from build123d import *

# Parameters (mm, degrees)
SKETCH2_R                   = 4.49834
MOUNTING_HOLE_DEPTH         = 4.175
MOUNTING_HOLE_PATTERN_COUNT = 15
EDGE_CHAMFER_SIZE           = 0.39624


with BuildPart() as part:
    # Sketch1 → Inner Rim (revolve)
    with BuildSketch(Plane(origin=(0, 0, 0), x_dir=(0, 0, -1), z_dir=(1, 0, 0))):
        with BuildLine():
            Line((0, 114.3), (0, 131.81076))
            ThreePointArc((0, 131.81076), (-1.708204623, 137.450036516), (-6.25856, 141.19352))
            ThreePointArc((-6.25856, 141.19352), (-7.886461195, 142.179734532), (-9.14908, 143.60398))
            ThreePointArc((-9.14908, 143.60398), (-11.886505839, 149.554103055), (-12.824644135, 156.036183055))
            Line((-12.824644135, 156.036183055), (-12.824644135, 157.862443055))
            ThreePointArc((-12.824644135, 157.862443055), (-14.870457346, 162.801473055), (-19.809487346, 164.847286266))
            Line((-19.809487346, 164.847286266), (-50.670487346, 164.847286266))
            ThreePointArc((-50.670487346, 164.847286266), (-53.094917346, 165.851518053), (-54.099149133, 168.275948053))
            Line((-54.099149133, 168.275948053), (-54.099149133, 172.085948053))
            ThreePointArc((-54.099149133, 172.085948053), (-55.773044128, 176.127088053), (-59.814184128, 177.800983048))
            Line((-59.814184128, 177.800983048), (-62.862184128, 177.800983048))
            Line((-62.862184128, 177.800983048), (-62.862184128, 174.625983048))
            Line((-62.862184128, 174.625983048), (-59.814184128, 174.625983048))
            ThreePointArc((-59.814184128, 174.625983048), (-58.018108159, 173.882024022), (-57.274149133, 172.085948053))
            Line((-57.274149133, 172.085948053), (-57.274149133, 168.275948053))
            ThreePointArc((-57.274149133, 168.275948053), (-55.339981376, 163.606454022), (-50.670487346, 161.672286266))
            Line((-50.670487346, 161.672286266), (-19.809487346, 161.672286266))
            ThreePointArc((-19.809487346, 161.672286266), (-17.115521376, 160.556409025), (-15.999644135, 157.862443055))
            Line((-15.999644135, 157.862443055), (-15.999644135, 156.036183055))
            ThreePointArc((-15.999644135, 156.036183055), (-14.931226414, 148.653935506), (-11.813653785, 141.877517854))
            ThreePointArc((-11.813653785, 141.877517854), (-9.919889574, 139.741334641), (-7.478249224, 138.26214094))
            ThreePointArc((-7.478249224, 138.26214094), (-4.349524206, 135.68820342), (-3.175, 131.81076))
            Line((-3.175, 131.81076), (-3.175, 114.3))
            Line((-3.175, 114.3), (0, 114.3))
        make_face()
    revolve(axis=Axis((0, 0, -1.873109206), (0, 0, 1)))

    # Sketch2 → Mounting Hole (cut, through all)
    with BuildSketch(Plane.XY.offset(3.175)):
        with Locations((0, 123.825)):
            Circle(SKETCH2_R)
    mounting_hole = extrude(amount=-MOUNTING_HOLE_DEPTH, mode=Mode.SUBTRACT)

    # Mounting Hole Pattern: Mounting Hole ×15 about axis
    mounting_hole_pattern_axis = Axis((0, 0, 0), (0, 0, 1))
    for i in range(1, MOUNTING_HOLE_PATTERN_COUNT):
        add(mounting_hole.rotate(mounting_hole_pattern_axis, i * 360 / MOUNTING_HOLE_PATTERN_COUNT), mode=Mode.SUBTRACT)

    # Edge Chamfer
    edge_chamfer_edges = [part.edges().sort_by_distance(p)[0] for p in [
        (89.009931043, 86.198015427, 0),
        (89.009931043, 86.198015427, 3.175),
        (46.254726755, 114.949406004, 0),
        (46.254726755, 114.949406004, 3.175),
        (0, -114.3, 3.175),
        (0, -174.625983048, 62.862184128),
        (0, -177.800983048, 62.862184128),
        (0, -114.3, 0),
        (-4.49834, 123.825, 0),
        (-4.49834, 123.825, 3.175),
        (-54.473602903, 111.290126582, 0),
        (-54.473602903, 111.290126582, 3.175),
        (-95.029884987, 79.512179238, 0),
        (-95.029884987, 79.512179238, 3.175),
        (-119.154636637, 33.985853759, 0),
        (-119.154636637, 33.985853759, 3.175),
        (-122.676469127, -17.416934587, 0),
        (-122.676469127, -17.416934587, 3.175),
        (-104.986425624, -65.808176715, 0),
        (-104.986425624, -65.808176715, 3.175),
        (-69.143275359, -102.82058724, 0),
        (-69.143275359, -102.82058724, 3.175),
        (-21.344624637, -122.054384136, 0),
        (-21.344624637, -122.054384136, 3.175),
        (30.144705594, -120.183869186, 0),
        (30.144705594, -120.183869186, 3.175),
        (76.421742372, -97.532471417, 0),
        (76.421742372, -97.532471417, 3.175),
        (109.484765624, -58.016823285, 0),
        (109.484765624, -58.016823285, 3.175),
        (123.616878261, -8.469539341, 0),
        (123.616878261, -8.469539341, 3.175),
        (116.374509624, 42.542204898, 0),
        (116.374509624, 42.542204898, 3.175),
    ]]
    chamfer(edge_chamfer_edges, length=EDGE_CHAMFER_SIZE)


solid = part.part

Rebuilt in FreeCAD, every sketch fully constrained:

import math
import FreeCAD as App
import Part
import Sketcher
from FreeCAD import Vector
Q = App.Units.Quantity


def edges_at(feature, points):
    """Names of the edges that pass closest to the given points."""
    edges = feature.Shape.Edges
    near = lambda p: min(range(len(edges)), key=lambda i: edges[i].distToShape(Part.Vertex(*p))[0])
    return sorted({f"Edge{near(p) + 1}" for p in points})

doc = App.newDocument("Part")
body = doc.addObject("PartDesign::Body", "Body")

sketch1 = body.newObject("Sketcher::SketchObject", "Sketch")
sketch1.AttachmentSupport = (doc.getObject("YZ_Plane"), [""])
sketch1.MapMode = "FlatFace"
sketch1.addGeometry(Part.LineSegment(Vector(114.3, 0, 0), Vector(131.81076, 0, 0)), False)
sketch1.addGeometry(Part.ArcOfCircle(Part.Circle(Vector(131.81076, 10.162542, 0), Vector(0, 0, 1), 10.162542), math.radians(-90), math.radians(-22.591235)), False)
sketch1.addGeometry(Part.ArcOfCircle(Part.Circle(Vector(147.057801, 3.818548, 0), Vector(0, 0, 1), 6.35165), math.radians(122.940486), math.radians(157.408765)), False)
sketch1.addGeometry(Part.ArcOfCircle(Part.Circle(Vector(156.036183, -10.038437, 0), Vector(0, 0, 1), 22.863081), math.radians(90), math.radians(122.940486)), False)
sketch1.addGeometry(Part.LineSegment(Vector(156.036183, 12.824644, 0), Vector(157.862443, 12.824644, 0)), False)
sketch1.addGeometry(Part.ArcOfCircle(Part.Circle(Vector(157.862443, 19.809487, 0), Vector(0, 0, 1), 6.984843), math.radians(-90), math.radians(0)), False)
sketch1.addGeometry(Part.LineSegment(Vector(164.847286, 19.809487, 0), Vector(164.847286, 50.670487, 0)), False)
sketch1.addGeometry(Part.ArcOfCircle(Part.Circle(Vector(168.275948, 50.670487, 0), Vector(0, 0, 1), 3.428662), math.radians(90), math.radians(180)), False)
sketch1.addGeometry(Part.LineSegment(Vector(168.275948, 54.099149, 0), Vector(172.085948, 54.099149, 0)), False)
sketch1.addGeometry(Part.ArcOfCircle(Part.Circle(Vector(172.085948, 59.814184, 0), Vector(0, 0, 1), 5.715035), math.radians(-90), math.radians(0)), False)
sketch1.addGeometry(Part.LineSegment(Vector(177.800983, 59.814184, 0), Vector(177.800983, 62.862184, 0)), False)
sketch1.addGeometry(Part.LineSegment(Vector(177.800983, 62.862184, 0), Vector(174.625983, 62.862184, 0)), False)
sketch1.addGeometry(Part.LineSegment(Vector(174.625983, 62.862184, 0), Vector(174.625983, 59.814184, 0)), False)
sketch1.addGeometry(Part.ArcOfCircle(Part.Circle(Vector(172.085948, 59.814184, 0), Vector(0, 0, 1), 2.540035), math.radians(-90), math.radians(0)), False)
sketch1.addGeometry(Part.LineSegment(Vector(172.085948, 57.274149, 0), Vector(168.275948, 57.274149, 0)), False)
sketch1.addGeometry(Part.ArcOfCircle(Part.Circle(Vector(168.275948, 50.670487, 0), Vector(0, 0, 1), 6.603662), math.radians(90), math.radians(180)), False)
sketch1.addGeometry(Part.LineSegment(Vector(161.672286, 50.670487, 0), Vector(161.672286, 19.809487, 0)), False)
sketch1.addGeometry(Part.ArcOfCircle(Part.Circle(Vector(157.862443, 19.809487, 0), Vector(0, 0, 1), 3.809843), math.radians(-90), math.radians(0)), False)
sketch1.addGeometry(Part.LineSegment(Vector(157.862443, 15.999644, 0), Vector(156.036183, 15.999644, 0)), False)
sketch1.addGeometry(Part.ArcOfCircle(Part.Circle(Vector(156.036183, -10.038437, 0), Vector(0, 0, 1), 26.038081), math.radians(90), math.radians(122.940486)), False)
sketch1.addGeometry(Part.ArcOfCircle(Part.Circle(Vector(147.057801, 3.818548, 0), Vector(0, 0, 1), 9.52665), math.radians(122.940486), math.radians(157.408765)), False)
sketch1.addGeometry(Part.ArcOfCircle(Part.Circle(Vector(131.81076, 10.162542, 0), Vector(0, 0, 1), 6.987542), math.radians(-90), math.radians(-22.591235)), False)
sketch1.addGeometry(Part.LineSegment(Vector(131.81076, 3.175, 0), Vector(114.3, 3.175, 0)), False)
sketch1.addGeometry(Part.LineSegment(Vector(114.3, 3.175, 0), Vector(114.3, 0, 0)), False)
sketch1.addConstraint(Sketcher.Constraint("Tangent", 0, 2, 1, 1))
sketch1.addConstraint(Sketcher.Constraint("Tangent", 1, 2, 2, 2))
sketch1.addConstraint(Sketcher.Constraint("Tangent", 2, 1, 3, 2))
sketch1.addConstraint(Sketcher.Constraint("Tangent", 3, 1, 4, 1))
sketch1.addConstraint(Sketcher.Constraint("Tangent", 4, 2, 5, 1))
sketch1.addConstraint(Sketcher.Constraint("Tangent", 5, 2, 6, 1))
sketch1.addConstraint(Sketcher.Constraint("Tangent", 6, 2, 7, 2))
sketch1.addConstraint(Sketcher.Constraint("Tangent", 7, 1, 8, 1))
sketch1.addConstraint(Sketcher.Constraint("Tangent", 8, 2, 9, 1))
sketch1.addConstraint(Sketcher.Constraint("Tangent", 9, 2, 10, 1))
sketch1.addConstraint(Sketcher.Constraint("Coincident", 10, 2, 11, 1))
sketch1.addConstraint(Sketcher.Constraint("Coincident", 11, 2, 12, 1))
sketch1.addConstraint(Sketcher.Constraint("Tangent", 12, 2, 13, 2))
sketch1.addConstraint(Sketcher.Constraint("Tangent", 13, 1, 14, 1))
sketch1.addConstraint(Sketcher.Constraint("Tangent", 14, 2, 15, 1))
sketch1.addConstraint(Sketcher.Constraint("Tangent", 15, 2, 16, 1))
sketch1.addConstraint(Sketcher.Constraint("Tangent", 16, 2, 17, 2))
sketch1.addConstraint(Sketcher.Constraint("Tangent", 17, 1, 18, 1))
sketch1.addConstraint(Sketcher.Constraint("Tangent", 18, 2, 19, 1))
sketch1.addConstraint(Sketcher.Constraint("Tangent", 19, 2, 20, 1))
sketch1.addConstraint(Sketcher.Constraint("Tangent", 20, 2, 21, 2))
sketch1.addConstraint(Sketcher.Constraint("Tangent", 21, 1, 22, 1))
sketch1.addConstraint(Sketcher.Constraint("Coincident", 22, 2, 23, 1))
sketch1.addConstraint(Sketcher.Constraint("Coincident", 23, 2, 0, 1))
sketch1.addConstraint(Sketcher.Constraint("Horizontal", 0))
sketch1.addConstraint(Sketcher.Constraint("Horizontal", 4))
sketch1.addConstraint(Sketcher.Constraint("Vertical", 6))
sketch1.addConstraint(Sketcher.Constraint("Horizontal", 8))
sketch1.addConstraint(Sketcher.Constraint("Vertical", 10))
sketch1.addConstraint(Sketcher.Constraint("Horizontal", 11))
sketch1.addConstraint(Sketcher.Constraint("Vertical", 12))
sketch1.addConstraint(Sketcher.Constraint("Horizontal", 14))
sketch1.addConstraint(Sketcher.Constraint("Vertical", 16))
sketch1.addConstraint(Sketcher.Constraint("Horizontal", 18))
sketch1.addConstraint(Sketcher.Constraint("Horizontal", 22))
sketch1.addConstraint(Sketcher.Constraint("Vertical", 23))
sketch1.addConstraint(Sketcher.Constraint("Coincident", 13, 3, 9, 3))
sketch1.addConstraint(Sketcher.Constraint("Coincident", 15, 3, 7, 3))
sketch1.addConstraint(Sketcher.Constraint("Coincident", 17, 3, 5, 3))
sketch1.addConstraint(Sketcher.Constraint("Coincident", 19, 3, 3, 3))
sketch1.addConstraint(Sketcher.Constraint("Coincident", 20, 3, 2, 3))
sketch1.addConstraint(Sketcher.Constraint("Coincident", 21, 3, 1, 3))
sketch1.addConstraint(Sketcher.Constraint("PointOnObject", 0, 2, -1))
sketch1.addConstraint(Sketcher.Constraint("DistanceX", 8, 1, 8, 2, Q("0.15 in")))
sketch1.addConstraint(Sketcher.Constraint("DistanceY", 10, 1, 10, 2, Q("0.12 in")))
sketch1.addConstraint(Sketcher.Constraint("DistanceX", -1, 1, 22, 2, Q("4.5 in")))
sketch1.addConstraint(Sketcher.Constraint("Radius", 1, Q("0.4001001 in")))
sketch1.addConstraint(Sketcher.Constraint("Radius", 21, Q("0.2751001 in")))
sketch1.addConstraint(Sketcher.Constraint("DistanceY", 6, 1, 6, 2, Q("1.215 in")))
sketch1.addConstraint(Sketcher.Constraint("DistanceX", 0, 1, 0, 2, Q("0.6894 in")))
sketch1.addConstraint(Sketcher.Constraint("DistanceX", 4, 1, 4, 2, Q("0.0719 in")))
sketch1.addConstraint(Sketcher.Constraint("Radius", 2, Q("6.35165 mm")))
sketch1.addConstraint(Sketcher.Constraint("Radius", 3, Q("22.863081 mm")))
sketch1.addConstraint(Sketcher.Constraint("Radius", 7, Q("3.428662 mm")))
sketch1.addConstraint(Sketcher.Constraint("DistanceX", -1, 1, 1, 2, Q("5.5588 in")))
sketch1.addConstraint(Sketcher.Constraint("DistanceX", -1, 1, 2, 1, Q("5.6537 in")))
sketch1.addConstraint(Sketcher.Constraint("Radius", 5, Q("6.984843 mm")))
sketch1.addConstraint(Sketcher.Constraint("Radius", 9, Q("5.715035 mm")))
revolution = body.newObject("PartDesign::Revolution", "Revolution")
revolution.Profile = sketch1
revolution.ReferenceAxis = (sketch1, ["V_Axis"])
revolution.Angle = 360

sketch2 = body.newObject("Sketcher::SketchObject", "Sketch001")
sketch2.AttachmentSupport = (doc.getObject("XY_Plane"), [""])
sketch2.MapMode = "FlatFace"
sketch2.AttachmentOffset = App.Placement(Vector(0, 0, 0.125 * 25.4), App.Rotation())
sketch2.addGeometry(Part.Circle(Vector(0, 123.825, 0), Vector(0, 0, 1), 4.49834), False)
sketch2.addConstraint(Sketcher.Constraint("PointOnObject", 0, 3, -2))
sketch2.addConstraint(Sketcher.Constraint("Diameter", 0, Q("0.3542 in")))
sketch2.addConstraint(Sketcher.Constraint("DistanceY", -1, 1, 0, 3, Q("4.875 in")))
pocket1 = body.newObject("PartDesign::Pocket", "Pocket")
pocket1.Profile = sketch2
pocket1.Type = "ThroughAll"
doc.recompute()

polarpattern = body.newObject("PartDesign::PolarPattern", "PolarPattern")
polarpattern.Originals = [pocket1]
polarpattern.Axis = (doc.getObject("Z_Axis"), [""])
polarpattern.Angle = 360
polarpattern.Occurrences = 15
body.Tip = polarpattern
doc.recompute()

chamfer = body.newObject("PartDesign::Chamfer", "Chamfer")
chamfer.Base = (polarpattern, edges_at(polarpattern, [
    (89.01, 86.198, 0),
    (89.01, 86.198, 3.175),
    (46.255, 114.949, 0),
    (46.255, 114.949, 3.175),
    (0, -114.3, 3.175),
    (0, -174.626, 62.862),
    (0, -177.801, 62.862),
    (0, -114.3, 0),
    (-4.498, 123.825, 0),
    (-4.498, 123.825, 3.175),
    (-54.474, 111.29, 0),
    (-54.474, 111.29, 3.175),
    (-95.03, 79.512, 0),
    (-95.03, 79.512, 3.175),
    (-119.155, 33.986, 0),
    (-119.155, 33.986, 3.175),
    (-122.676, -17.417, 0),
    (-122.676, -17.417, 3.175),
    (-104.986, -65.808, 0),
    (-104.986, -65.808, 3.175),
    (-69.143, -102.821, 0),
    (-69.143, -102.821, 3.175),
    (-21.345, -122.054, 0),
    (-21.345, -122.054, 3.175),
    (30.145, -120.184, 0),
    (30.145, -120.184, 3.175),
    (76.422, -97.532, 0),
    (76.422, -97.532, 3.175),
    (109.485, -58.017, 0),
    (109.485, -58.017, 3.175),
    (123.617, -8.47, 0),
    (123.617, -8.47, 3.175),
    (116.375, 42.542, 0),
    (116.375, 42.542, 3.175),
]))
chamfer.Size = Q("0.0156 in")

doc.recompute()
